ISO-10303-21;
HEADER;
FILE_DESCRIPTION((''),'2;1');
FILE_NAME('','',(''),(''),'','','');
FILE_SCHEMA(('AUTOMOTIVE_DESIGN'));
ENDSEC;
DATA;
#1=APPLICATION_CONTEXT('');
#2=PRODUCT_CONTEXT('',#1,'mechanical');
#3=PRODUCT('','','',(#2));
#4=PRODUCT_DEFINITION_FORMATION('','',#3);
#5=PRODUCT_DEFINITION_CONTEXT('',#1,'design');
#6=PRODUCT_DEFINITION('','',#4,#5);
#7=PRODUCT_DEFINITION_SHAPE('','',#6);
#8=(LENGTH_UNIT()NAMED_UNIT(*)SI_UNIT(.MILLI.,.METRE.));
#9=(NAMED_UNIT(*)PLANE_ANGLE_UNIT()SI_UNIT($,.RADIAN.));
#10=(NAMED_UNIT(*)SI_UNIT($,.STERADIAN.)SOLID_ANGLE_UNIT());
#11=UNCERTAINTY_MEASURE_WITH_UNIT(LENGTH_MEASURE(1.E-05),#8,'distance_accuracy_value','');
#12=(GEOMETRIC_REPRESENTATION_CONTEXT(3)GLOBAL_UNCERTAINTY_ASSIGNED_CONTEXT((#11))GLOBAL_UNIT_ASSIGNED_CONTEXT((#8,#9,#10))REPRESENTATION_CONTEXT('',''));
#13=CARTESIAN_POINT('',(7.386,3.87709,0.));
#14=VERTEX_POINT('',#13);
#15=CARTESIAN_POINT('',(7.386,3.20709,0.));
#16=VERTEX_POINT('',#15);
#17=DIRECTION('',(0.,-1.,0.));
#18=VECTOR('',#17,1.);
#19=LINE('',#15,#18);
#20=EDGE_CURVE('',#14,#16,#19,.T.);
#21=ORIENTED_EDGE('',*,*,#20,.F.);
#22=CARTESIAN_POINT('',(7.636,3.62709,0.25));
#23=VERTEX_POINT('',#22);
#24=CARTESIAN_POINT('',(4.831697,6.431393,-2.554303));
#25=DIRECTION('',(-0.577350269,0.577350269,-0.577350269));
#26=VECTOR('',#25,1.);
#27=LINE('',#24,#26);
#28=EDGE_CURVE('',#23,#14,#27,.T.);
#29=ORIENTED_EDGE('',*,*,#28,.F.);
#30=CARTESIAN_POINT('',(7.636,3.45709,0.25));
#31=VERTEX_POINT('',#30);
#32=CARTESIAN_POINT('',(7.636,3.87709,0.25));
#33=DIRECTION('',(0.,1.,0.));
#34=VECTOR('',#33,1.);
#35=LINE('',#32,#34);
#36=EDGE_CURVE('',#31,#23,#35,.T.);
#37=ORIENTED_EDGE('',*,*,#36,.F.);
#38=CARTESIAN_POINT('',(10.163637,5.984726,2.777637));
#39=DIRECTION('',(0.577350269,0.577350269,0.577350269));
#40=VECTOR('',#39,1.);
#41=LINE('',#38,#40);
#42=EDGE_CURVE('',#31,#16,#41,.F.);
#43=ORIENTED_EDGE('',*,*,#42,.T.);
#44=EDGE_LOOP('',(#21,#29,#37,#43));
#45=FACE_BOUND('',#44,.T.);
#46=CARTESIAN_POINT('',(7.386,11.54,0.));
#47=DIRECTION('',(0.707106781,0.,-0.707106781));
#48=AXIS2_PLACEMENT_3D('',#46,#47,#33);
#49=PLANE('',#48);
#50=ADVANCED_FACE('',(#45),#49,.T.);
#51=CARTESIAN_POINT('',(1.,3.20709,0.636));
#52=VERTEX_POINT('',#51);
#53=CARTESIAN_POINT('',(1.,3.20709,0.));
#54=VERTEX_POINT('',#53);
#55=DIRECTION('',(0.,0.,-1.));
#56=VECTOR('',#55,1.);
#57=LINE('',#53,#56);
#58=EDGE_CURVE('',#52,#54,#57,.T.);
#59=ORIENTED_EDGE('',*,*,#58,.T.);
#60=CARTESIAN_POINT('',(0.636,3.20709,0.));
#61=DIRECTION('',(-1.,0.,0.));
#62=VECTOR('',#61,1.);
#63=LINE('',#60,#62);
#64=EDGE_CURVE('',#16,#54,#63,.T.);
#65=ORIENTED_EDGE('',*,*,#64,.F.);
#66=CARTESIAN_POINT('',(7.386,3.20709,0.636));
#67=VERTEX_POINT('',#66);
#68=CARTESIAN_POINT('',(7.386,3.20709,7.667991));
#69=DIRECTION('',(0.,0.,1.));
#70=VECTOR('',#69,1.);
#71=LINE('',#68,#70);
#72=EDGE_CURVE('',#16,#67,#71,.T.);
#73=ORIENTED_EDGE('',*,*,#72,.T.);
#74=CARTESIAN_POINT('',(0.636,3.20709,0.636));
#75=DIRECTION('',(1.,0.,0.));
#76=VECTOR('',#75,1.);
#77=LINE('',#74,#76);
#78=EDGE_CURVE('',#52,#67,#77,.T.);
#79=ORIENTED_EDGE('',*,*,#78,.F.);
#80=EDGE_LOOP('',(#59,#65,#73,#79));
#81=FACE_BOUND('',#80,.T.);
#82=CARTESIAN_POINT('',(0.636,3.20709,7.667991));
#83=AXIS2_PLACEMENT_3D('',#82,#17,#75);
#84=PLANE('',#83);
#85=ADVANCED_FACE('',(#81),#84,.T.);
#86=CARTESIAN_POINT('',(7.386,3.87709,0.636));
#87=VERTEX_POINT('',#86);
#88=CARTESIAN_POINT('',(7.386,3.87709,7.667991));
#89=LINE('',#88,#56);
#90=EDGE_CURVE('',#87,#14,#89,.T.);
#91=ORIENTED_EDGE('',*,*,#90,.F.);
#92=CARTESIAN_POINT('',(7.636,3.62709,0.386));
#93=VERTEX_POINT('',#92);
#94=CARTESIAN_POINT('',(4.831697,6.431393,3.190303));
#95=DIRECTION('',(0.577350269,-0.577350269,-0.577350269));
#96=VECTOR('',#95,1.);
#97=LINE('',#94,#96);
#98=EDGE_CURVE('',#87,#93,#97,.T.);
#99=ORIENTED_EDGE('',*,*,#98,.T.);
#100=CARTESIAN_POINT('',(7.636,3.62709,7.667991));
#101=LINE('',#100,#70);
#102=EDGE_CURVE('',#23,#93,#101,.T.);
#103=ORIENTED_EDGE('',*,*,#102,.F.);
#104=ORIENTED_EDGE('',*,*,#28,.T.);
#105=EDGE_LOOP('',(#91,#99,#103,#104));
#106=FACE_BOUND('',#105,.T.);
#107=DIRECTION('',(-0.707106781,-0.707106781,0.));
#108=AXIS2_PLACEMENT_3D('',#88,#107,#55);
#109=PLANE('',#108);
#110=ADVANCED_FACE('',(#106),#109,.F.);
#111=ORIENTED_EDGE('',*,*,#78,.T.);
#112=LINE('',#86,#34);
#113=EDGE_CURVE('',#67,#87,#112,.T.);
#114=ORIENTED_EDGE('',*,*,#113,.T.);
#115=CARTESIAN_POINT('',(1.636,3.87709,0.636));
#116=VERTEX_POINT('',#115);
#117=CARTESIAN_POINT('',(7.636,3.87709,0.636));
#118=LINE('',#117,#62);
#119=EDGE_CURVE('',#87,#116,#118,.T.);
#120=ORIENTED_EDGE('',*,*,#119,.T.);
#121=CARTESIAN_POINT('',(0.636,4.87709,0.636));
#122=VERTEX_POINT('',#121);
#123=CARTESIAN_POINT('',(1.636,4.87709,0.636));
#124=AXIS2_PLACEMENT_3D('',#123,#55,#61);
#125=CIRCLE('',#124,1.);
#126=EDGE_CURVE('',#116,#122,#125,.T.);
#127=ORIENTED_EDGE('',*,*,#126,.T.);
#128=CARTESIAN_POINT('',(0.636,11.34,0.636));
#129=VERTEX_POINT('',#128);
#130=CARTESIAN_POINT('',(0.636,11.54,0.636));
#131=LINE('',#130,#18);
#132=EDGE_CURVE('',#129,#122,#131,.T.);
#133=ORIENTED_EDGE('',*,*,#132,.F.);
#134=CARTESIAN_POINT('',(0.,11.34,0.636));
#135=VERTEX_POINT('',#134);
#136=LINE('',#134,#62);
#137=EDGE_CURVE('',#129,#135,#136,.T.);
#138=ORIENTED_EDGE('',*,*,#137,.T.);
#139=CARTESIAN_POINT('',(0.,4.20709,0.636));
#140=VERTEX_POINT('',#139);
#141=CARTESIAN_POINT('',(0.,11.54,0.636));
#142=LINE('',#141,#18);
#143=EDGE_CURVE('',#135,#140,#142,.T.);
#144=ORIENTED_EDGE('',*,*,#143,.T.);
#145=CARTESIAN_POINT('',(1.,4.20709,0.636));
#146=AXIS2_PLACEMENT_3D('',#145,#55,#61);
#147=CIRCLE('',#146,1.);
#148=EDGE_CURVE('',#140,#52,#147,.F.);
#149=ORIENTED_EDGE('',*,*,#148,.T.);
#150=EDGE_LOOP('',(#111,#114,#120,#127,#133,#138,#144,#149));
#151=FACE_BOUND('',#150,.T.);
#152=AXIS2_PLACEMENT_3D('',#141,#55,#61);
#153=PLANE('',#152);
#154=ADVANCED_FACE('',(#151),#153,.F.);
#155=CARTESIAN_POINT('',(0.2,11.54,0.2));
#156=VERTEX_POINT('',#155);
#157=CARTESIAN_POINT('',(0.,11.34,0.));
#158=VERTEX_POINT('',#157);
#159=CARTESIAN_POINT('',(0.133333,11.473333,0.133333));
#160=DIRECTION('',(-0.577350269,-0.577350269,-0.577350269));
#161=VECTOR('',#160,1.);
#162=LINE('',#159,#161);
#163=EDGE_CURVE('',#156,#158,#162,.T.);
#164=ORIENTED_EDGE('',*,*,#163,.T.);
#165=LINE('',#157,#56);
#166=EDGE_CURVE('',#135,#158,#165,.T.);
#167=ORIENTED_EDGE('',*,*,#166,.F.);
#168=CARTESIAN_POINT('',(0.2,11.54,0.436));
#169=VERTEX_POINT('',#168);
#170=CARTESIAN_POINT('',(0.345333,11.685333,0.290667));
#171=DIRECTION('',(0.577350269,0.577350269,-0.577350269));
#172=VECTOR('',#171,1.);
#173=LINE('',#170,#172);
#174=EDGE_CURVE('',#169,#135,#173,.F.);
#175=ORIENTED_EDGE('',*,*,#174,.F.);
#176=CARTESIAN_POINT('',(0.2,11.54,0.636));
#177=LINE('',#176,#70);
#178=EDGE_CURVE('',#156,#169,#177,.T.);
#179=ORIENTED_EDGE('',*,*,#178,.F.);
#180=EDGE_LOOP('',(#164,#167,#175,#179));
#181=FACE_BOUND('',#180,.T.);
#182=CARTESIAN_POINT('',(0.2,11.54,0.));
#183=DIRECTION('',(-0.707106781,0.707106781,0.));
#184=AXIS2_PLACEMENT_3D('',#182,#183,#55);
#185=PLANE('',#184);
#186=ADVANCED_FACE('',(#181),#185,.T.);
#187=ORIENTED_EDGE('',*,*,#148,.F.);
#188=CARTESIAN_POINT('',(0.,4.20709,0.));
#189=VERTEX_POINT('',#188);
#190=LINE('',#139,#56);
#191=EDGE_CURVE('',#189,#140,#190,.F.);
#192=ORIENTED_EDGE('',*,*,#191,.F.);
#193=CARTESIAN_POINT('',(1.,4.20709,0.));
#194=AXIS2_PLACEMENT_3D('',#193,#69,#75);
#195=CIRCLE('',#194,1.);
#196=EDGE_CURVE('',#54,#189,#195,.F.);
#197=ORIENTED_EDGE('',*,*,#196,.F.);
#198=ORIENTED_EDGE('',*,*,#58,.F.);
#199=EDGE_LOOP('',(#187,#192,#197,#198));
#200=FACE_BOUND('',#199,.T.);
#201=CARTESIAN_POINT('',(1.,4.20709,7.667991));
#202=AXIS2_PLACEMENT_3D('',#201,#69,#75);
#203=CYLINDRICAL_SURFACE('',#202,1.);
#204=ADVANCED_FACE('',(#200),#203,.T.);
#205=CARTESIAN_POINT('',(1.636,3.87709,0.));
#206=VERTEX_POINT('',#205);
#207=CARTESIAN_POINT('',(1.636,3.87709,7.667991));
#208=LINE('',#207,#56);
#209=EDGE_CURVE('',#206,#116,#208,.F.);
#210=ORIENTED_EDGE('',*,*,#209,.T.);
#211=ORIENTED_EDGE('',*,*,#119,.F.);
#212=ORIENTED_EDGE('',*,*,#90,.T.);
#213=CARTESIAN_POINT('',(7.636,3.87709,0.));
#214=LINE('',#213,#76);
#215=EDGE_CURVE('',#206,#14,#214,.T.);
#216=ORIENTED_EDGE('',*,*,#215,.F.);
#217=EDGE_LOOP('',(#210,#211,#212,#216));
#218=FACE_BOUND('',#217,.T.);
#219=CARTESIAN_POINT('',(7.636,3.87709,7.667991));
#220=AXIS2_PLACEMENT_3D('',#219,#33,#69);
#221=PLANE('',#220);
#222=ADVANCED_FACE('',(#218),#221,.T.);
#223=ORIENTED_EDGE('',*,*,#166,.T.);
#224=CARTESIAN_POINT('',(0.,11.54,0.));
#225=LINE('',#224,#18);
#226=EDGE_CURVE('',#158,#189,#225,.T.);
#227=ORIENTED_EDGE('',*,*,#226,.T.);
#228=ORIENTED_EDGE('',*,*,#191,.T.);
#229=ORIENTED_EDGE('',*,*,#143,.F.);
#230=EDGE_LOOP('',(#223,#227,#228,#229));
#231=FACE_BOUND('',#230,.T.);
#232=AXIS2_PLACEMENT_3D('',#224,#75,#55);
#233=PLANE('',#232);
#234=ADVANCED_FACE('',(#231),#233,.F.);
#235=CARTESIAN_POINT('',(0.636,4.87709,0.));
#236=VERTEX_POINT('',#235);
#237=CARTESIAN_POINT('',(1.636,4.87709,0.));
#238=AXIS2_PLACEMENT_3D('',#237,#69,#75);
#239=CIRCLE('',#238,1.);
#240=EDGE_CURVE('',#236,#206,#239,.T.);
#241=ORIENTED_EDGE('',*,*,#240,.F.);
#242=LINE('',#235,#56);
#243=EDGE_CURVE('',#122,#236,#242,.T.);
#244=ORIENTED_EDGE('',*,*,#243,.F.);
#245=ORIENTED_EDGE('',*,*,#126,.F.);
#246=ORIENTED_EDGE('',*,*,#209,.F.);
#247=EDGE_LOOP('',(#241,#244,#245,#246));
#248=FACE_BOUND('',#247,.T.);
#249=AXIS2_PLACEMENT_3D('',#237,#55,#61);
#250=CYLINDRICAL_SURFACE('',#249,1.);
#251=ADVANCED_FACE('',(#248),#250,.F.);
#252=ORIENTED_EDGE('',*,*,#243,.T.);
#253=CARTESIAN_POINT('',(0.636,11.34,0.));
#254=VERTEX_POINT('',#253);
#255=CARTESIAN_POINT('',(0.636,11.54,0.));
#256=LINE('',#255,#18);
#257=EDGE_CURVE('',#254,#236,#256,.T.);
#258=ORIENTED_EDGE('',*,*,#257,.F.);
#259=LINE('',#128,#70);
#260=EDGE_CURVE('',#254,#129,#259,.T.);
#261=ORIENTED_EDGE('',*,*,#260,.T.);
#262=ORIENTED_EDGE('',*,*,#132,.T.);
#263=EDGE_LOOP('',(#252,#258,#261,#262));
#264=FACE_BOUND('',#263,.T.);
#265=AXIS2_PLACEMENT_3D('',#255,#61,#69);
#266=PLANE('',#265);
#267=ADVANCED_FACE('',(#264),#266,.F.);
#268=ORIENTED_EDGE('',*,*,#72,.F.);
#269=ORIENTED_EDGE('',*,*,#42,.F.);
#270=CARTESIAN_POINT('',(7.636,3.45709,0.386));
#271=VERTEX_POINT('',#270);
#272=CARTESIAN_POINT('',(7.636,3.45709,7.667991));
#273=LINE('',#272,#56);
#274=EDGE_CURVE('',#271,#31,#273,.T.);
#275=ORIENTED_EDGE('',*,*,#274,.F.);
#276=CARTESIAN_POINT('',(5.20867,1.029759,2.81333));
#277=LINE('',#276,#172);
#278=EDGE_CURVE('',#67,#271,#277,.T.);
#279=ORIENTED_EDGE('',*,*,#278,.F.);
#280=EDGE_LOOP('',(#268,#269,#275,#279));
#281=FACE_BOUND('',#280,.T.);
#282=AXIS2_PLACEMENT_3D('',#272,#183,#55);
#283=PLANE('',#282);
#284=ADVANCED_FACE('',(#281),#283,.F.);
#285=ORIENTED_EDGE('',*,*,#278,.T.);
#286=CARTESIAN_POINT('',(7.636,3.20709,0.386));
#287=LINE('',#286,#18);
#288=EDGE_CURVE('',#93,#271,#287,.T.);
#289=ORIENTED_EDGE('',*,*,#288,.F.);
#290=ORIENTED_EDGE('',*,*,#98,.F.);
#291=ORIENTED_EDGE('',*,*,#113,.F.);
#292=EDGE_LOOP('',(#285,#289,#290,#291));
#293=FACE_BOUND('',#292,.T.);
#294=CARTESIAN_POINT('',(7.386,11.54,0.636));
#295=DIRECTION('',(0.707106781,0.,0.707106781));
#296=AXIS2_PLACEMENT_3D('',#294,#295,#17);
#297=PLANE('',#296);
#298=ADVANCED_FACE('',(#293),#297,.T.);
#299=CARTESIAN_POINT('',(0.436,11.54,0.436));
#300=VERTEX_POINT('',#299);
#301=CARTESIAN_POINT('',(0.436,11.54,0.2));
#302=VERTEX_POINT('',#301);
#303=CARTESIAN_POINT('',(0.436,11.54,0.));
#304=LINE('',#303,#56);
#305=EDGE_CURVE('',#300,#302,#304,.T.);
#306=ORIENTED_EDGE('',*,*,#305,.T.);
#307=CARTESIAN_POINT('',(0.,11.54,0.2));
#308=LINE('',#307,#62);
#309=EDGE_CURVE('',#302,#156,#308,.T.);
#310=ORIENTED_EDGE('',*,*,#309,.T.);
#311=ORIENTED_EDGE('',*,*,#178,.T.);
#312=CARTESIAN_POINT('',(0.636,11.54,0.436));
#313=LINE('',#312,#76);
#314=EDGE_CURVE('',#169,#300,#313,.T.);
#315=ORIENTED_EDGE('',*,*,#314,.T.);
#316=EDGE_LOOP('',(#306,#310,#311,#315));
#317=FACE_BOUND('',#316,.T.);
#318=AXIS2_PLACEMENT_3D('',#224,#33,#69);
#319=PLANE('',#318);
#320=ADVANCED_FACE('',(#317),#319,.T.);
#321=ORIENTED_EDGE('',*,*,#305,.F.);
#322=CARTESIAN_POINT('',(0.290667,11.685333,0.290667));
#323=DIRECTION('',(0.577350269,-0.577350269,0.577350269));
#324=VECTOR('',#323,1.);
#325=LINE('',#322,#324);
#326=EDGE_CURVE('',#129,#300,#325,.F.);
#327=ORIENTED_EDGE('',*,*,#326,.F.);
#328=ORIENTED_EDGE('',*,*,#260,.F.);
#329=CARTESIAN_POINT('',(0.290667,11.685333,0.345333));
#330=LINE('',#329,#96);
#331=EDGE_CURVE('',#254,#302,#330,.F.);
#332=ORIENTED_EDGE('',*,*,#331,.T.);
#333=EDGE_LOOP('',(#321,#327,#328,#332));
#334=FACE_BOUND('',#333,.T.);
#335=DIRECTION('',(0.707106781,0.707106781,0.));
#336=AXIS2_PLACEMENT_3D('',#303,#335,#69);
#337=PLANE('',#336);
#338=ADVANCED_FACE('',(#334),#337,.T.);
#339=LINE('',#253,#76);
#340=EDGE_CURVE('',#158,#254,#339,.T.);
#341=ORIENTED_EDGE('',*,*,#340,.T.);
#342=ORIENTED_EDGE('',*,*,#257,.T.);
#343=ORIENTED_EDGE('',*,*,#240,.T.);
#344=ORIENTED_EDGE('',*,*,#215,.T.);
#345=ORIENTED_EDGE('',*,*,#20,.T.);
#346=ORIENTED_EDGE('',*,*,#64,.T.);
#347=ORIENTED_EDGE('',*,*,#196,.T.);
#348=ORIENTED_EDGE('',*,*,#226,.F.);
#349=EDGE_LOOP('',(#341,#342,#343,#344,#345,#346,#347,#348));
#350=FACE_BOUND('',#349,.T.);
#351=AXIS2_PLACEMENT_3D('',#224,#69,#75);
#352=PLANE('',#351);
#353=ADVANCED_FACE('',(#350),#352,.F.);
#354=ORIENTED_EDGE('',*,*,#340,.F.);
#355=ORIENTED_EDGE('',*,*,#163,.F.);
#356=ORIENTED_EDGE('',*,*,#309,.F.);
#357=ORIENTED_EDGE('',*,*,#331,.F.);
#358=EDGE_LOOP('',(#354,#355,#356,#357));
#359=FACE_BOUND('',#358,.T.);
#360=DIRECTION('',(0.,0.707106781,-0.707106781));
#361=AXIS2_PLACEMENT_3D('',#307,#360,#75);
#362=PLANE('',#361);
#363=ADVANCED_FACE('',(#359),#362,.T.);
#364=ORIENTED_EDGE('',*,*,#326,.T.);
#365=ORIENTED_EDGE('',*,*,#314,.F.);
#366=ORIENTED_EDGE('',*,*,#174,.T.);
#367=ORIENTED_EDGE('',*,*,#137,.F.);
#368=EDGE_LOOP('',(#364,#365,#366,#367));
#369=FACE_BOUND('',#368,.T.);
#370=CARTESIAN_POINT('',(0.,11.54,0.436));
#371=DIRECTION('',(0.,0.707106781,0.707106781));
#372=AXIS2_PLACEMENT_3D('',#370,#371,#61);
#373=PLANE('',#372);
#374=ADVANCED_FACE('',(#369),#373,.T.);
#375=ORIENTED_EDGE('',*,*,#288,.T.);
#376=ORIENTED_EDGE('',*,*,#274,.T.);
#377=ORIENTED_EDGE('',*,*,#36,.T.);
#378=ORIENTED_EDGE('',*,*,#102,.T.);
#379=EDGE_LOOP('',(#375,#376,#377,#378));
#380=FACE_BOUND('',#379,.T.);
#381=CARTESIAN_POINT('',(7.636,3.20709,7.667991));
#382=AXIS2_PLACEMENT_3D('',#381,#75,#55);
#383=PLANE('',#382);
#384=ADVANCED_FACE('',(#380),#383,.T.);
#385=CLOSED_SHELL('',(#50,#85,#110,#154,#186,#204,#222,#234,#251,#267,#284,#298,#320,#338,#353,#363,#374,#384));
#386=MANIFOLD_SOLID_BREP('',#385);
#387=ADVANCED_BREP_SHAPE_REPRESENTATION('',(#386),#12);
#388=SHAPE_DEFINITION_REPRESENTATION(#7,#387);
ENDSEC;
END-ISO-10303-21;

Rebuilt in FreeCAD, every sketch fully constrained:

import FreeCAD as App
import Part
import Sketcher

V = App.Vector
Q = App.Units.Quantity


def edges_at(feature, points):
    """Names of the edges that pass closest to the given points."""
    edges = feature.Shape.Edges
    near = lambda p: min(range(len(edges)), key=lambda i: edges[i].distToShape(Part.Vertex(*p))[0])
    return sorted({f"Edge{near(p) + 1}" for p in points})

doc = App.newDocument("Part")
body = doc.addObject("PartDesign::Body", "Body")

sketch1 = body.newObject("Sketcher::SketchObject", "Sketch")
sketch1.AttachmentSupport = (doc.getObject("XZ_Plane"), [""])
sketch1.MapMode = "FlatFace"
sketch1.addGeometry([
    Part.LineSegment(V(0, 0, 0), V(0, 0.636, 0)),
    Part.LineSegment(V(0, 0.636, 0), V(0.636, 0.636, 0)),
    Part.LineSegment(V(0.636, 0.636, 0), V(0.636, 0, 0)),
    Part.LineSegment(V(0.636, 0, 0), V(0, 0, 0)),
], False)
sketch1.addConstraint([
    Sketcher.Constraint("Coincident", 0, 2, 1, 1),
    Sketcher.Constraint("Coincident", 1, 2, 2, 1),
    Sketcher.Constraint("Coincident", 2, 2, 3, 1),
    Sketcher.Constraint("Coincident", 3, 2, 0, 1),
    Sketcher.Constraint("Vertical", 0),
    Sketcher.Constraint("Horizontal", 1),
    Sketcher.Constraint("Vertical", 2),
    Sketcher.Constraint("Horizontal", 3),
    Sketcher.Constraint("Coincident", 3, 2, -1, 1),
    Sketcher.Constraint("Equal", 3, 0),
    Sketcher.Constraint("DistanceX", 1, 1, 1, 2, Q("0.636 mm")),
])
pad1 = body.newObject("PartDesign::Pad", "Pad")
pad1.Profile = sketch1
pad1.Length = 11.54
pad1.Reversed = True
doc.recompute()

chamfer = body.newObject("PartDesign::Chamfer", "Chamfer")
chamfer.Base = (pad1, edges_at(pad1, [
    (0.636, 11.54, 0.318),
    (0.318, 11.54, 0),
    (0, 11.54, 0.318),
    (0.318, 0, 0),
    (0.636, 0, 0.318),
    (0.318, 0, 0.636),
    (0, 0, 0.318),
    (0.318, 11.54, 0.636),
]))
chamfer.Size = 0.2

sketch2 = body.newObject("Sketcher::SketchObject", "Sketch001")
sketch2.AttachmentSupport = (doc.getObject("XY_Plane"), [""])
sketch2.MapMode = "FlatFace"
sketch2.addGeometry([
    Part.LineSegment(V(7.636, 3.87709, 0), V(7.636, 3.20709, 0)),
    Part.LineSegment(V(7.636, 3.20709, 0), V(0.636, 3.20709, 0)),
    Part.LineSegment(V(0.636, 3.20709, 0), V(0.636, 3.87709, 0)),
    Part.LineSegment(V(0.636, 3.87709, 0), V(7.636, 3.87709, 0)),
], False)
sketch2.addConstraint([
    Sketcher.Constraint("Coincident", 0, 2, 1, 1),
    Sketcher.Constraint("Coincident", 1, 2, 2, 1),
    Sketcher.Constraint("Coincident", 2, 2, 3, 1),
    Sketcher.Constraint("Coincident", 3, 2, 0, 1),
    Sketcher.Constraint("Vertical", 0),
    Sketcher.Constraint("Horizontal", 1),
    Sketcher.Constraint("Vertical", 2),
    Sketcher.Constraint("Horizontal", 3),
    Sketcher.Constraint("DistanceX", 1, 2, 1, 1, Q("7 mm")),
    Sketcher.Constraint("DistanceY", 0, 2, 0, 1, Q("0.67 mm")),
    Sketcher.Constraint("DistanceX", -1, 1, 0, 2, Q("7.636 mm")),
    Sketcher.Constraint("DistanceY", -1, 1, 0, 2, Q("3.20709 mm")),
])
pad2 = body.newObject("PartDesign::Pad", "Pad001")
pad2.Profile = sketch2
pad2.Length = 0.636
doc.recompute()

chamfer2 = body.newObject("PartDesign::Chamfer", "Chamfer001")
chamfer2.Base = (pad2, edges_at(pad2, [
    (7.636, 3.877, 0.318),
    (7.636, 3.542, 0.636),
    (7.636, 3.542, 0),
    (7.636, 3.207, 0.318),
]))
chamfer2.Size = 0.25

sketch3 = body.newObject("Sketcher::SketchObject", "Sketch002")
sketch3.AttachmentSupport = (doc.getObject("XY_Plane"), [""])
sketch3.MapMode = "FlatFace"
sketch3.addGeometry([
    Part.LineSegment(V(0.636, 3.20709, 0), V(0.636, -0.433271, 0)),
    Part.LineSegment(V(0.636, -0.433271, 0), V(0, -0.433271, 0)),
    Part.LineSegment(V(0, -0.433271, 0), V(0, 3.20709, 0)),
    Part.LineSegment(V(0, 3.20709, 0), V(0.636, 3.20709, 0)),
], False)
sketch3.addConstraint([
    Sketcher.Constraint("Coincident", 0, 2, 1, 1),
    Sketcher.Constraint("Coincident", 1, 2, 2, 1),
    Sketcher.Constraint("Coincident", 2, 2, 3, 1),
    Sketcher.Constraint("Coincident", 3, 2, 0, 1),
    Sketcher.Constraint("Vertical", 0),
    Sketcher.Constraint("Horizontal", 1),
    Sketcher.Constraint("Vertical", 2),
    Sketcher.Constraint("Horizontal", 3),
    Sketcher.Constraint("PointOnObject", 1, 2, -2),
    Sketcher.Constraint("DistanceX", 1, 2, 1, 1, Q("0.636 mm")),
    Sketcher.Constraint("DistanceY", 0, 2, 0, 1, Q("3.640361 mm")),
    Sketcher.Constraint("DistanceY", 0, 2, -1, 1, Q("0.433271 mm")),
])
pocket1 = body.newObject("PartDesign::Pocket", "Pocket")
pocket1.Profile = sketch3
pocket1.Length = 0.636
pocket1.Reversed = True
doc.recompute()

fillet = body.newObject("PartDesign::Fillet", "Fillet")
fillet.Base = (pocket1, edges_at(pocket1, [(0.636, 3.877, 0.318), (0, 3.207, 0.318)]))
fillet.Radius = 1

doc.recompute()
